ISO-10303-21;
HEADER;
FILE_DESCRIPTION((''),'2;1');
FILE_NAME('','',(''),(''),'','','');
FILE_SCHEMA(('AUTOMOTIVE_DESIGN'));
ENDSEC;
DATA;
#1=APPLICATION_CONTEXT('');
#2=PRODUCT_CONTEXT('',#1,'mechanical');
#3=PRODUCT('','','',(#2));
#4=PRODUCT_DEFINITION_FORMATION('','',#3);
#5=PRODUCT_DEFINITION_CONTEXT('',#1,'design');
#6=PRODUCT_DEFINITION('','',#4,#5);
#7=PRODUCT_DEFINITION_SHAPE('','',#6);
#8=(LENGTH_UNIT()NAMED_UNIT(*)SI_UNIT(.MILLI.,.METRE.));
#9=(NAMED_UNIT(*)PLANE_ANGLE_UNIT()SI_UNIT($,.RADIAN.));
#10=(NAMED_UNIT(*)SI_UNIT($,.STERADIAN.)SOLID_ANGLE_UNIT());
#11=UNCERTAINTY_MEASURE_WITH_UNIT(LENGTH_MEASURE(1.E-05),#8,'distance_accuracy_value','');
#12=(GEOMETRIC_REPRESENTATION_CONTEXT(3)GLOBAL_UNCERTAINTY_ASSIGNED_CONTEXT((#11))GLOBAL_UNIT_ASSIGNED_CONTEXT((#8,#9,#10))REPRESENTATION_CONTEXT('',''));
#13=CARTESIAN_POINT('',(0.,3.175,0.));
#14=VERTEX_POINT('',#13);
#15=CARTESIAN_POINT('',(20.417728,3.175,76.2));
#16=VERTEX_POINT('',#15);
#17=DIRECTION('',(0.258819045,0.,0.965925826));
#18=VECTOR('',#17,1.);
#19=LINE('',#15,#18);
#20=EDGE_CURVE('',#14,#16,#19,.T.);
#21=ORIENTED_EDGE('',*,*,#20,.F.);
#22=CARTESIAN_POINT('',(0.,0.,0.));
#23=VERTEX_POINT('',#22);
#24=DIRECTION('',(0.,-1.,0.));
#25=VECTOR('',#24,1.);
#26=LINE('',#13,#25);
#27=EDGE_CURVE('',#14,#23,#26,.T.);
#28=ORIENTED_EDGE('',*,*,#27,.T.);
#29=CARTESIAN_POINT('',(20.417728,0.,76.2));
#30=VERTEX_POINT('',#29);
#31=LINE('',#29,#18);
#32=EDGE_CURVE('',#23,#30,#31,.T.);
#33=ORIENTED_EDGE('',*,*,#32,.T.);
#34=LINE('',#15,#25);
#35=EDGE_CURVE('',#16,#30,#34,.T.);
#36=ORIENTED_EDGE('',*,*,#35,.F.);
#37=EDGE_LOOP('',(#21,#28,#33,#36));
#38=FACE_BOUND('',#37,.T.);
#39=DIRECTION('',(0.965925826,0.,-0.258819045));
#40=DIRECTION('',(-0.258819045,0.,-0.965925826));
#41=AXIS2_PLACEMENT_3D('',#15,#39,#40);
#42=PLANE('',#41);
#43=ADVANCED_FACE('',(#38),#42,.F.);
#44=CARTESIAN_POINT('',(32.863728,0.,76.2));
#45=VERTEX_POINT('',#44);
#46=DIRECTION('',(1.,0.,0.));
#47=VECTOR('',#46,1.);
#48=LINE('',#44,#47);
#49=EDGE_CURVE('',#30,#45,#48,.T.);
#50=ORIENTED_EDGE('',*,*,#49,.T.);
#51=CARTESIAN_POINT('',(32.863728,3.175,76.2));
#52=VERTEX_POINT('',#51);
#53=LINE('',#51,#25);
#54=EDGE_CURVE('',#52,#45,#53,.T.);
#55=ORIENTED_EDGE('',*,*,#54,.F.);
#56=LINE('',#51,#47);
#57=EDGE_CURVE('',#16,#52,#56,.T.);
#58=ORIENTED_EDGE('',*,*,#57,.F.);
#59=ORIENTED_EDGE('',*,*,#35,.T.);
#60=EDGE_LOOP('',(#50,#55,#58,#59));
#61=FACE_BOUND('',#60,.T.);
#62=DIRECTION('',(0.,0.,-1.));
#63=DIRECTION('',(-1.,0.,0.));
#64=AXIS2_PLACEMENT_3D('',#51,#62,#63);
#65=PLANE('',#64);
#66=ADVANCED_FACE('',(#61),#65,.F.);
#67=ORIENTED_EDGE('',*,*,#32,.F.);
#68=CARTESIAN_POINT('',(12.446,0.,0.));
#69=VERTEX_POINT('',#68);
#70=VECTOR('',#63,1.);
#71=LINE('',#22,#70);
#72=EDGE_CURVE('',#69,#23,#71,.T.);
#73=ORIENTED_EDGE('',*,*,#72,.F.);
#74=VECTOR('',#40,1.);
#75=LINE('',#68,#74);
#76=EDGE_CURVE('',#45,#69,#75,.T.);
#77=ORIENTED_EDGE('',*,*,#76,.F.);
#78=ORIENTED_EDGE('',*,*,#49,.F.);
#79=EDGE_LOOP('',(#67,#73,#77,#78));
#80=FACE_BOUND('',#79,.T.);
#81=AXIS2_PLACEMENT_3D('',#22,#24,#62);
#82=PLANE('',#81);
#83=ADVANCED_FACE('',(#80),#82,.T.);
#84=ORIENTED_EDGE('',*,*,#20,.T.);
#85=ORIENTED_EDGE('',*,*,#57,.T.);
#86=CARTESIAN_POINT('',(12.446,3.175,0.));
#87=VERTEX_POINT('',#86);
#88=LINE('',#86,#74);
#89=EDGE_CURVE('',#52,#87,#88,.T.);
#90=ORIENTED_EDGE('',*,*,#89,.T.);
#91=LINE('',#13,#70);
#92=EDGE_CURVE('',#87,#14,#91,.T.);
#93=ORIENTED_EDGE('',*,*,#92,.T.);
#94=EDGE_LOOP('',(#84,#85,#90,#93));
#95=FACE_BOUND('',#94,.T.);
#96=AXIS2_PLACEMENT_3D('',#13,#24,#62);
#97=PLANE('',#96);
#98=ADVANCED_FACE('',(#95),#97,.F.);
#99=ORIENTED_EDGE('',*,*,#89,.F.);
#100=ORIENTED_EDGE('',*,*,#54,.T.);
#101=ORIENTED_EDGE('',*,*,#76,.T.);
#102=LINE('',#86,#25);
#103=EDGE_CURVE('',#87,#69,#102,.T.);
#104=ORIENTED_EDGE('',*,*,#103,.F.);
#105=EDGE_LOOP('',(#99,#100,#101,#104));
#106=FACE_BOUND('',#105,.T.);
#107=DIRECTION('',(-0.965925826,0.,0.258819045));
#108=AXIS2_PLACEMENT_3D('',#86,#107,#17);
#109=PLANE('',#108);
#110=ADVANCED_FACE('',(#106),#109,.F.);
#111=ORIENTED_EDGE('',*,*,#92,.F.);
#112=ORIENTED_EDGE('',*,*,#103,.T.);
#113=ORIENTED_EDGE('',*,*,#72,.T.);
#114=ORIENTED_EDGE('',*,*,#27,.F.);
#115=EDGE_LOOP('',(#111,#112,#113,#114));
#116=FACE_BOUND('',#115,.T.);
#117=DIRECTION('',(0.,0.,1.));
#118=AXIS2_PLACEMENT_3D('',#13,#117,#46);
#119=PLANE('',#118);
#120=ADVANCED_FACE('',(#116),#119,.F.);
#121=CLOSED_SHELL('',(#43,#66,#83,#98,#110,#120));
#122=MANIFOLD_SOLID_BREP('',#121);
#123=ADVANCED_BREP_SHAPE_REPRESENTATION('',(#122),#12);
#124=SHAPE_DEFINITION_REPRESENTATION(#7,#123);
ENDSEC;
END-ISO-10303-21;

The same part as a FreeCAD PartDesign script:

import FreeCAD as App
import Part
import Sketcher
from FreeCAD import Vector
Q = App.Units.Quantity

doc = App.newDocument("Part")
body = doc.addObject("PartDesign::Body", "Body")

# Sketch on XZ plane
sketch1 = body.newObject("Sketcher::SketchObject", "Sketch")
sketch1.AttachmentSupport = (doc.getObject("XZ_Plane"), [""])
sketch1.MapMode = "FlatFace"
sketch1.addGeometry([
    Part.LineSegment(Vector(12, 0, 0), Vector(0, 0, 0)),
    Part.LineSegment(Vector(0, 0, 0), Vector(20, 76, 0)),
    Part.LineSegment(Vector(20, 76, 0), Vector(33, 76, 0)),
    Part.LineSegment(Vector(33, 76, 0), Vector(12, 0, 0)),
], False)
sketch1.addConstraint([
    Sketcher.Constraint("Coincident", 0, 2, 1, 1),
    Sketcher.Constraint("Coincident", 1, 2, 2, 1),
    Sketcher.Constraint("Coincident", 2, 2, 3, 1),
    Sketcher.Constraint("Coincident", 3, 2, 0, 1),
    Sketcher.Constraint("Horizontal", 0),
    Sketcher.Constraint("Horizontal", 2),
    Sketcher.Constraint("Coincident", 0, 2, -1, 1),
    Sketcher.Constraint("Parallel", 1, 3),
    Sketcher.Constraint("DistanceY", -1, 1, 1, 2, Q("3 in")),
    Sketcher.Constraint("Angle", 1, Q("75 deg")),
    Sketcher.Constraint("DistanceX", 0, 2, 0, 1, Q("0.49 in")),
])
pad1 = body.newObject("PartDesign::Pad", "Pad")
pad1.Profile = sketch1
pad1.Length = Q("0.125 in")
pad1.Reversed = True

doc.recompute()
